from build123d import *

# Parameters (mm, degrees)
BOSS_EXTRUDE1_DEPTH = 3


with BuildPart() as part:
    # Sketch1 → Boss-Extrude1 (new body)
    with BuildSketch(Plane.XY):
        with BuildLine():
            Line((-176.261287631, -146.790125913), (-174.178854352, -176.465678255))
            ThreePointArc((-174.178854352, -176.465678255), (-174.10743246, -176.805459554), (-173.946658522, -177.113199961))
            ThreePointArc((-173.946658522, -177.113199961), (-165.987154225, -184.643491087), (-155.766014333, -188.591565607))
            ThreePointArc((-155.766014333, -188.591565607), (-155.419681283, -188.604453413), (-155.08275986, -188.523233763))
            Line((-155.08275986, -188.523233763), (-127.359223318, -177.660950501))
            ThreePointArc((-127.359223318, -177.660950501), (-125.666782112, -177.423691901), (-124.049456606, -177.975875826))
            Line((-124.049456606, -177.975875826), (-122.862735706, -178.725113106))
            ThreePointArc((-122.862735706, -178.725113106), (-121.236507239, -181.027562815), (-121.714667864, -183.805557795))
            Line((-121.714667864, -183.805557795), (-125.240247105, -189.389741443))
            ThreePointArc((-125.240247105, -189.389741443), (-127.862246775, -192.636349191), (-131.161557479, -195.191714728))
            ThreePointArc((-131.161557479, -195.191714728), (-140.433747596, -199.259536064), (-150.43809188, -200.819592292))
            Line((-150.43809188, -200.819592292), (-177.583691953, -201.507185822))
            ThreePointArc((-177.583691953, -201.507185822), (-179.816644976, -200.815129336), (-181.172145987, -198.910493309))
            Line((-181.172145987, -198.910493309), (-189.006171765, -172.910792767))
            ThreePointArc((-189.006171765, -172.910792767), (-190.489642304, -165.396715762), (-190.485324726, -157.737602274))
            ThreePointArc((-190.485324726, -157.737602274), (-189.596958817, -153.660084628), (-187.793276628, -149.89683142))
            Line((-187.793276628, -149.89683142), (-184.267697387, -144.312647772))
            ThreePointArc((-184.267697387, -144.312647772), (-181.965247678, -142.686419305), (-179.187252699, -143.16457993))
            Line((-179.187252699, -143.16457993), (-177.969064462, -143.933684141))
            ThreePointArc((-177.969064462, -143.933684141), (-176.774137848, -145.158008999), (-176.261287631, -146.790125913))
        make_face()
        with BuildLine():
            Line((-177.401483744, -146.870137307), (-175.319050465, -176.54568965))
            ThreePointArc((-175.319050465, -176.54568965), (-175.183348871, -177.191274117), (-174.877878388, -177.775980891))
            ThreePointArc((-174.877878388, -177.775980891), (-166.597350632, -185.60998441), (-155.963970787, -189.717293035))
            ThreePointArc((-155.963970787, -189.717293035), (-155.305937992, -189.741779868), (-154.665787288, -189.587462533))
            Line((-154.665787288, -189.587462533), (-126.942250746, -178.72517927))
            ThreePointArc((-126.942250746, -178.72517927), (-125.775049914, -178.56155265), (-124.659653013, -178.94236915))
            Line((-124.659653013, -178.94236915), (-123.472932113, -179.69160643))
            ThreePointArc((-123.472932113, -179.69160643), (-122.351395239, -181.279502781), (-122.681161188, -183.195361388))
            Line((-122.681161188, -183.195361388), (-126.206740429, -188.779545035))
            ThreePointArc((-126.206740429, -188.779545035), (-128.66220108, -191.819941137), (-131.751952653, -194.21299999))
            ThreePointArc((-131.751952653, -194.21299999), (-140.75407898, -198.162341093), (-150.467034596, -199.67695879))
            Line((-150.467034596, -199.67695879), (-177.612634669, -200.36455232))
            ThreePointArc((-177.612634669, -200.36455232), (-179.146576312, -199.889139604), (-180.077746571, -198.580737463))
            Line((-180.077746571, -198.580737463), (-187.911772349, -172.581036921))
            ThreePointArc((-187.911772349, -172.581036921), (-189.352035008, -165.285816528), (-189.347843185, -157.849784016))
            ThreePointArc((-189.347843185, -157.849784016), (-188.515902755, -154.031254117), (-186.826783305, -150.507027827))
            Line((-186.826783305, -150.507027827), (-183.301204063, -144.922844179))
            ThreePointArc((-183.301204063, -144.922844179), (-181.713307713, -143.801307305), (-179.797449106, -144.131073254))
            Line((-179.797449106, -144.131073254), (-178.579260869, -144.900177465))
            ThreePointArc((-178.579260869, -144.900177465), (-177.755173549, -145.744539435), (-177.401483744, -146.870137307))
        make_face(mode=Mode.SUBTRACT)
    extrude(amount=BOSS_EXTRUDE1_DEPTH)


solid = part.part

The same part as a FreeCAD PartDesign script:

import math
import FreeCAD as App
import Part
import Sketcher
from FreeCAD import Vector
Q = App.Units.Quantity

doc = App.newDocument("Part")
body = doc.addObject("PartDesign::Body", "Body")

sketch1 = doc.addObject("Sketcher::SketchObject", "Sketch")
body.addObject(sketch1)
sketch1.AttachmentSupport = (doc.XY_Plane, [""])
sketch1.MapMode = "FlatFace"
sketch1.addGeometry(Part.LineSegment(Vector(-174.2, -176.5, 0), Vector(-176.3, -146.8, 0)), False)
sketch1.addGeometry(Part.ArcOfCircle(Part.Circle(Vector(-179.9, -147, 0), Vector(0, 0, 1), 3.7), math.radians(4), math.radians(58)), False)
sketch1.addGeometry(Part.LineSegment(Vector(-178, -143.9, 0), Vector(-179.2, -143.2, 0)), False)
sketch1.addGeometry(Part.ArcOfCircle(Part.Circle(Vector(-181.2, -146.3, 0), Vector(0, 0, 1), 3.7), math.radians(58), math.radians(148)), False)
sketch1.addGeometry(Part.LineSegment(Vector(-184.3, -144.3, 0), Vector(-187.8, -149.9, 0)), False)
sketch1.addGeometry(Part.ArcOfCircle(Part.Circle(Vector(-172.6, -159.5, 0), Vector(0, 0, 1), 18), math.radians(148), math.radians(174)), False)
sketch1.addGeometry(Part.ArcOfCircle(Part.Circle(Vector(-151.4, -161.6, 0), Vector(0, 0, 1), 39.2), math.radians(174), math.radians(197)), False)
sketch1.addGeometry(Part.LineSegment(Vector(-189, -172.9, 0), Vector(-181.2, -198.9, 0)), False)
sketch1.addGeometry(Part.ArcOfCircle(Part.Circle(Vector(-177.7, -197.9, 0), Vector(0, 0, 1), 3.7), math.radians(-163), math.radians(-89)), False)
sketch1.addGeometry(Part.LineSegment(Vector(-177.6, -201.5, 0), Vector(-150.4, -200.8, 0)), False)
sketch1.addGeometry(Part.ArcOfCircle(Part.Circle(Vector(-151.4, -161.6, 0), Vector(0, 0, 1), 39.2), math.radians(-89), math.radians(-59)), False)
sketch1.addGeometry(Part.ArcOfCircle(Part.Circle(Vector(-140.5, -179.8, 0), Vector(0, 0, 1), 18), math.radians(-59), math.radians(-32)), False)
sketch1.addGeometry(Part.LineSegment(Vector(-125.2, -189.4, 0), Vector(-121.7, -183.8, 0)), False)
sketch1.addGeometry(Part.ArcOfCircle(Part.Circle(Vector(-124.8, -181.8, 0), Vector(0, 0, 1), 3.7), math.radians(-32), math.radians(58)), False)
sketch1.addGeometry(Part.LineSegment(Vector(-122.9, -178.7, 0), Vector(-124, -178, 0)), False)
sketch1.addGeometry(Part.ArcOfCircle(Part.Circle(Vector(-126, -181.1, 0), Vector(0, 0, 1), 3.7), math.radians(58), math.radians(111)), False)
sketch1.addGeometry(Part.LineSegment(Vector(-127.4, -177.7, 0), Vector(-155.1, -188.5, 0)), False)
sketch1.addGeometry(Part.ArcOfCircle(Part.Circle(Vector(-155.5, -187.3, 0), Vector(0, 0, 1), 1.3), math.radians(-100), math.radians(-69)), False)
sketch1.addGeometry(Part.ArcOfCircle(Part.Circle(Vector(-150.9, -160.7, 0), Vector(0, 0, 1), 28.3), math.radians(-145), math.radians(-100)), False)
sketch1.addGeometry(Part.ArcOfCircle(Part.Circle(Vector(-172.9, -176.4, 0), Vector(0, 0, 1), 1.3), math.radians(-176), math.radians(-145)), False)
sketch1.addGeometry(Part.LineSegment(Vector(-177.4, -146.9, 0), Vector(-175.3, -176.5, 0)), False)
sketch1.addGeometry(Part.ArcOfCircle(Part.Circle(Vector(-172.9, -176.4, 0), Vector(0, 0, 1), 2.4), math.radians(-176), math.radians(-145)), False)
sketch1.addGeometry(Part.ArcOfCircle(Part.Circle(Vector(-150.9, -160.7, 0), Vector(0, 0, 1), 29.5), math.radians(-145), math.radians(-100)), False)
sketch1.addGeometry(Part.ArcOfCircle(Part.Circle(Vector(-155.5, -187.3, 0), Vector(0, 0, 1), 2.4), math.radians(-100), math.radians(-69)), False)
sketch1.addGeometry(Part.LineSegment(Vector(-154.7, -189.6, 0), Vector(-126.9, -178.7, 0)), False)
sketch1.addGeometry(Part.ArcOfCircle(Part.Circle(Vector(-126, -181.1, 0), Vector(0, 0, 1), 2.5), math.radians(58), math.radians(111)), False)
sketch1.addGeometry(Part.LineSegment(Vector(-124.7, -178.9, 0), Vector(-123.5, -179.7, 0)), False)
sketch1.addGeometry(Part.ArcOfCircle(Part.Circle(Vector(-124.8, -181.8, 0), Vector(0, 0, 1), 2.5), math.radians(-32), math.radians(58)), False)
sketch1.addGeometry(Part.LineSegment(Vector(-122.7, -183.2, 0), Vector(-126.2, -188.8, 0)), False)
sketch1.addGeometry(Part.ArcOfCircle(Part.Circle(Vector(-140.5, -179.8, 0), Vector(0, 0, 1), 16.9), math.radians(-59), math.radians(-32)), False)
sketch1.addGeometry(Part.ArcOfCircle(Part.Circle(Vector(-151.4, -161.6, 0), Vector(0, 0, 1), 38.1), math.radians(-89), math.radians(-59)), False)
sketch1.addGeometry(Part.LineSegment(Vector(-150.5, -199.7, 0), Vector(-177.6, -200.4, 0)), False)
sketch1.addGeometry(Part.ArcOfCircle(Part.Circle(Vector(-177.7, -197.9, 0), Vector(0, 0, 1), 2.5), math.radians(-163), math.radians(-89)), False)
sketch1.addGeometry(Part.LineSegment(Vector(-180.1, -198.6, 0), Vector(-187.9, -172.6, 0)), False)
sketch1.addGeometry(Part.ArcOfCircle(Part.Circle(Vector(-151.4, -161.6, 0), Vector(0, 0, 1), 38.1), math.radians(174), math.radians(197)), False)
sketch1.addGeometry(Part.ArcOfCircle(Part.Circle(Vector(-172.6, -159.5, 0), Vector(0, 0, 1), 16.9), math.radians(148), math.radians(174)), False)
sketch1.addGeometry(Part.LineSegment(Vector(-186.8, -150.5, 0), Vector(-183.3, -144.9, 0)), False)
sketch1.addGeometry(Part.ArcOfCircle(Part.Circle(Vector(-181.2, -146.3, 0), Vector(0, 0, 1), 2.5), math.radians(58), math.radians(148)), False)
sketch1.addGeometry(Part.LineSegment(Vector(-179.8, -144.1, 0), Vector(-178.6, -144.9, 0)), False)
sketch1.addGeometry(Part.ArcOfCircle(Part.Circle(Vector(-179.9, -147, 0), Vector(0, 0, 1), 2.5), math.radians(4), math.radians(58)), False)
sketch1.addConstraint(Sketcher.Constraint("Tangent", 0, 2, 1, 1))
sketch1.addConstraint(Sketcher.Constraint("Tangent", 1, 2, 2, 1))
sketch1.addConstraint(Sketcher.Constraint("Tangent", 2, 2, 3, 1))
sketch1.addConstraint(Sketcher.Constraint("Tangent", 3, 2, 4, 1))
sketch1.addConstraint(Sketcher.Constraint("Tangent", 4, 2, 5, 1))
sketch1.addConstraint(Sketcher.Constraint("Tangent", 5, 2, 6, 1))
sketch1.addConstraint(Sketcher.Constraint("Tangent", 6, 2, 7, 1))
sketch1.addConstraint(Sketcher.Constraint("Tangent", 7, 2, 8, 1))
sketch1.addConstraint(Sketcher.Constraint("Tangent", 8, 2, 9, 1))
sketch1.addConstraint(Sketcher.Constraint("Tangent", 9, 2, 10, 1))
sketch1.addConstraint(Sketcher.Constraint("Tangent", 10, 2, 11, 1))
sketch1.addConstraint(Sketcher.Constraint("Tangent", 11, 2, 12, 1))
sketch1.addConstraint(Sketcher.Constraint("Tangent", 12, 2, 13, 1))
sketch1.addConstraint(Sketcher.Constraint("Tangent", 13, 2, 14, 1))
sketch1.addConstraint(Sketcher.Constraint("Tangent", 14, 2, 15, 1))
sketch1.addConstraint(Sketcher.Constraint("Tangent", 15, 2, 16, 1))
sketch1.addConstraint(Sketcher.Constraint("Tangent", 16, 2, 17, 2))
sketch1.addConstraint(Sketcher.Constraint("Tangent", 17, 1, 18, 2))
sketch1.addConstraint(Sketcher.Constraint("Tangent", 18, 1, 19, 2))
sketch1.addConstraint(Sketcher.Constraint("Tangent", 19, 1, 0, 1))
sketch1.addConstraint(Sketcher.Constraint("Tangent", 20, 2, 21, 1))
sketch1.addConstraint(Sketcher.Constraint("Tangent", 21, 2, 22, 1))
sketch1.addConstraint(Sketcher.Constraint("Tangent", 22, 2, 23, 1))
sketch1.addConstraint(Sketcher.Constraint("Tangent", 23, 2, 24, 1))
sketch1.addConstraint(Sketcher.Constraint("Tangent", 24, 2, 25, 2))
sketch1.addConstraint(Sketcher.Constraint("Tangent", 25, 1, 26, 1))
sketch1.addConstraint(Sketcher.Constraint("Tangent", 26, 2, 27, 2))
sketch1.addConstraint(Sketcher.Constraint("Tangent", 27, 1, 28, 1))
sketch1.addConstraint(Sketcher.Constraint("Tangent", 28, 2, 29, 2))
sketch1.addConstraint(Sketcher.Constraint("Tangent", 29, 1, 30, 2))
sketch1.addConstraint(Sketcher.Constraint("Tangent", 30, 1, 31, 1))
sketch1.addConstraint(Sketcher.Constraint("Tangent", 31, 2, 32, 2))
sketch1.addConstraint(Sketcher.Constraint("Tangent", 32, 1, 33, 1))
sketch1.addConstraint(Sketcher.Constraint("Tangent", 33, 2, 34, 2))
sketch1.addConstraint(Sketcher.Constraint("Tangent", 34, 1, 35, 2))
sketch1.addConstraint(Sketcher.Constraint("Tangent", 35, 1, 36, 1))
sketch1.addConstraint(Sketcher.Constraint("Tangent", 36, 2, 37, 2))
sketch1.addConstraint(Sketcher.Constraint("Tangent", 37, 1, 38, 1))
sketch1.addConstraint(Sketcher.Constraint("Tangent", 38, 2, 39, 2))
sketch1.addConstraint(Sketcher.Constraint("Tangent", 39, 1, 20, 1))
sketch1.addConstraint(Sketcher.Constraint("Coincident", 10, 3, 6, 3))
sketch1.addConstraint(Sketcher.Constraint("Coincident", 21, 3, 19, 3))
sketch1.addConstraint(Sketcher.Constraint("Coincident", 22, 3, 18, 3))
sketch1.addConstraint(Sketcher.Constraint("Coincident", 23, 3, 17, 3))
sketch1.addConstraint(Sketcher.Constraint("Coincident", 25, 3, 15, 3))
sketch1.addConstraint(Sketcher.Constraint("Coincident", 27, 3, 13, 3))
sketch1.addConstraint(Sketcher.Constraint("Coincident", 29, 3, 11, 3))
sketch1.addConstraint(Sketcher.Constraint("Coincident", 30, 3, 6, 3))
sketch1.addConstraint(Sketcher.Constraint("Coincident", 32, 3, 8, 3))
sketch1.addConstraint(Sketcher.Constraint("Coincident", 34, 3, 6, 3))
sketch1.addConstraint(Sketcher.Constraint("Coincident", 35, 3, 5, 3))
sketch1.addConstraint(Sketcher.Constraint("Coincident", 37, 3, 3, 3))
sketch1.addConstraint(Sketcher.Constraint("Coincident", 39, 3, 1, 3))
sketch1.addConstraint(Sketcher.Constraint("Equal", 1, 3))
sketch1.addConstraint(Sketcher.Constraint("Equal", 6, 10))
sketch1.addConstraint(Sketcher.Constraint("Equal", 5, 11))
sketch1.addConstraint(Sketcher.Constraint("Equal", 3, 13))
sketch1.addConstraint(Sketcher.Constraint("Equal", 13, 15))
sketch1.addConstraint(Sketcher.Constraint("Equal", 17, 19))
sketch1.addConstraint(Sketcher.Constraint("Equal", 25, 27))
sketch1.addConstraint(Sketcher.Constraint("Equal", 30, 34))
sketch1.addConstraint(Sketcher.Constraint("Equal", 27, 37))
sketch1.addConstraint(Sketcher.Constraint("Equal", 37, 39))
sketch1.addConstraint(Sketcher.Constraint("Perpendicular", 2, 4))
sketch1.addConstraint(Sketcher.Constraint("Parallel", 4, 12))
sketch1.addConstraint(Sketcher.Constraint("Perpendicular", 12, 14))
sketch1.addConstraint(Sketcher.Constraint("Parallel", 0, 20))
sketch1.addConstraint(Sketcher.Constraint("Perpendicular", 26, 28))
sketch1.addConstraint(Sketcher.Constraint("Parallel", 9, 31))
sketch1.addConstraint(Sketcher.Constraint("Equal", 4, 12))
sketch1.addConstraint(Sketcher.Constraint("Radius", 25, Q("0.1 in")))
sketch1.addConstraint(Sketcher.Constraint("Radius", 30, Q("1.5 in")))
sketch1.addConstraint(Sketcher.Constraint("Radius", 17, Q("0.05 in")))
sketch1.addConstraint(Sketcher.Constraint("Radius", 1, Q("0.145 in")))
sketch1.addConstraint(Sketcher.Constraint("Distance", 4, Q("0.26 in")))
sketch1.addConstraint(Sketcher.Constraint("Radius", 8, Q("3.65125 mm")))
sketch1.addConstraint(Sketcher.Constraint("Radius", 5, Q("17.995456 mm")))
sketch1.addConstraint(Sketcher.Constraint("Radius", 18, Q("28.339715 mm")))
sketch1.addConstraint(Sketcher.Constraint("DistanceY", 18, 1, -1, 1, Q("177.1132 mm")))
sketch1.addConstraint(Sketcher.Constraint("DistanceY", 29, 1, -1, 1, Q("194.213 mm")))
sketch1.addConstraint(Sketcher.Constraint("Distance", 0, Q("29.748528 mm")))
sketch1.addConstraint(Sketcher.Constraint("Distance", 2, Q("1.440661 mm")))
sketch1.addConstraint(Sketcher.Constraint("DistanceY", 1, 3, -1, 1, Q("147.04794 mm")))
sketch1.addConstraint(Sketcher.Constraint("DistanceX", 3, 3, -1, 1, Q("181.153441 mm")))
sketch1.addConstraint(Sketcher.Constraint("DistanceX", 5, 3, -1, 1, Q("172.576751 mm")))
sketch1.addConstraint(Sketcher.Constraint("DistanceX", 6, 3, -1, 1, Q("151.431792 mm")))
sketch1.addConstraint(Sketcher.Constraint("DistanceY", 18, 3, -1, 1, Q("160.680109 mm")))
sketch1.addConstraint(Sketcher.Constraint("DistanceX", 6, 2, -1, 1, Q("189.006172 mm")))
sketch1.addConstraint(Sketcher.Constraint("DistanceX", 8, 2, -1, 1, Q("177.583692 mm")))
sketch1.addConstraint(Sketcher.Constraint("DistanceY", 15, 2, -1, 1, Q("177.660951 mm")))
sketch1.addConstraint(Sketcher.Constraint("DistanceX", 16, 2, -1, 1, Q("155.08276 mm")))
pad1 = doc.addObject("PartDesign::Pad", "Pad")
body.addObject(pad1)
pad1.Profile = sketch1
pad1.Length = 3

doc.recompute()
